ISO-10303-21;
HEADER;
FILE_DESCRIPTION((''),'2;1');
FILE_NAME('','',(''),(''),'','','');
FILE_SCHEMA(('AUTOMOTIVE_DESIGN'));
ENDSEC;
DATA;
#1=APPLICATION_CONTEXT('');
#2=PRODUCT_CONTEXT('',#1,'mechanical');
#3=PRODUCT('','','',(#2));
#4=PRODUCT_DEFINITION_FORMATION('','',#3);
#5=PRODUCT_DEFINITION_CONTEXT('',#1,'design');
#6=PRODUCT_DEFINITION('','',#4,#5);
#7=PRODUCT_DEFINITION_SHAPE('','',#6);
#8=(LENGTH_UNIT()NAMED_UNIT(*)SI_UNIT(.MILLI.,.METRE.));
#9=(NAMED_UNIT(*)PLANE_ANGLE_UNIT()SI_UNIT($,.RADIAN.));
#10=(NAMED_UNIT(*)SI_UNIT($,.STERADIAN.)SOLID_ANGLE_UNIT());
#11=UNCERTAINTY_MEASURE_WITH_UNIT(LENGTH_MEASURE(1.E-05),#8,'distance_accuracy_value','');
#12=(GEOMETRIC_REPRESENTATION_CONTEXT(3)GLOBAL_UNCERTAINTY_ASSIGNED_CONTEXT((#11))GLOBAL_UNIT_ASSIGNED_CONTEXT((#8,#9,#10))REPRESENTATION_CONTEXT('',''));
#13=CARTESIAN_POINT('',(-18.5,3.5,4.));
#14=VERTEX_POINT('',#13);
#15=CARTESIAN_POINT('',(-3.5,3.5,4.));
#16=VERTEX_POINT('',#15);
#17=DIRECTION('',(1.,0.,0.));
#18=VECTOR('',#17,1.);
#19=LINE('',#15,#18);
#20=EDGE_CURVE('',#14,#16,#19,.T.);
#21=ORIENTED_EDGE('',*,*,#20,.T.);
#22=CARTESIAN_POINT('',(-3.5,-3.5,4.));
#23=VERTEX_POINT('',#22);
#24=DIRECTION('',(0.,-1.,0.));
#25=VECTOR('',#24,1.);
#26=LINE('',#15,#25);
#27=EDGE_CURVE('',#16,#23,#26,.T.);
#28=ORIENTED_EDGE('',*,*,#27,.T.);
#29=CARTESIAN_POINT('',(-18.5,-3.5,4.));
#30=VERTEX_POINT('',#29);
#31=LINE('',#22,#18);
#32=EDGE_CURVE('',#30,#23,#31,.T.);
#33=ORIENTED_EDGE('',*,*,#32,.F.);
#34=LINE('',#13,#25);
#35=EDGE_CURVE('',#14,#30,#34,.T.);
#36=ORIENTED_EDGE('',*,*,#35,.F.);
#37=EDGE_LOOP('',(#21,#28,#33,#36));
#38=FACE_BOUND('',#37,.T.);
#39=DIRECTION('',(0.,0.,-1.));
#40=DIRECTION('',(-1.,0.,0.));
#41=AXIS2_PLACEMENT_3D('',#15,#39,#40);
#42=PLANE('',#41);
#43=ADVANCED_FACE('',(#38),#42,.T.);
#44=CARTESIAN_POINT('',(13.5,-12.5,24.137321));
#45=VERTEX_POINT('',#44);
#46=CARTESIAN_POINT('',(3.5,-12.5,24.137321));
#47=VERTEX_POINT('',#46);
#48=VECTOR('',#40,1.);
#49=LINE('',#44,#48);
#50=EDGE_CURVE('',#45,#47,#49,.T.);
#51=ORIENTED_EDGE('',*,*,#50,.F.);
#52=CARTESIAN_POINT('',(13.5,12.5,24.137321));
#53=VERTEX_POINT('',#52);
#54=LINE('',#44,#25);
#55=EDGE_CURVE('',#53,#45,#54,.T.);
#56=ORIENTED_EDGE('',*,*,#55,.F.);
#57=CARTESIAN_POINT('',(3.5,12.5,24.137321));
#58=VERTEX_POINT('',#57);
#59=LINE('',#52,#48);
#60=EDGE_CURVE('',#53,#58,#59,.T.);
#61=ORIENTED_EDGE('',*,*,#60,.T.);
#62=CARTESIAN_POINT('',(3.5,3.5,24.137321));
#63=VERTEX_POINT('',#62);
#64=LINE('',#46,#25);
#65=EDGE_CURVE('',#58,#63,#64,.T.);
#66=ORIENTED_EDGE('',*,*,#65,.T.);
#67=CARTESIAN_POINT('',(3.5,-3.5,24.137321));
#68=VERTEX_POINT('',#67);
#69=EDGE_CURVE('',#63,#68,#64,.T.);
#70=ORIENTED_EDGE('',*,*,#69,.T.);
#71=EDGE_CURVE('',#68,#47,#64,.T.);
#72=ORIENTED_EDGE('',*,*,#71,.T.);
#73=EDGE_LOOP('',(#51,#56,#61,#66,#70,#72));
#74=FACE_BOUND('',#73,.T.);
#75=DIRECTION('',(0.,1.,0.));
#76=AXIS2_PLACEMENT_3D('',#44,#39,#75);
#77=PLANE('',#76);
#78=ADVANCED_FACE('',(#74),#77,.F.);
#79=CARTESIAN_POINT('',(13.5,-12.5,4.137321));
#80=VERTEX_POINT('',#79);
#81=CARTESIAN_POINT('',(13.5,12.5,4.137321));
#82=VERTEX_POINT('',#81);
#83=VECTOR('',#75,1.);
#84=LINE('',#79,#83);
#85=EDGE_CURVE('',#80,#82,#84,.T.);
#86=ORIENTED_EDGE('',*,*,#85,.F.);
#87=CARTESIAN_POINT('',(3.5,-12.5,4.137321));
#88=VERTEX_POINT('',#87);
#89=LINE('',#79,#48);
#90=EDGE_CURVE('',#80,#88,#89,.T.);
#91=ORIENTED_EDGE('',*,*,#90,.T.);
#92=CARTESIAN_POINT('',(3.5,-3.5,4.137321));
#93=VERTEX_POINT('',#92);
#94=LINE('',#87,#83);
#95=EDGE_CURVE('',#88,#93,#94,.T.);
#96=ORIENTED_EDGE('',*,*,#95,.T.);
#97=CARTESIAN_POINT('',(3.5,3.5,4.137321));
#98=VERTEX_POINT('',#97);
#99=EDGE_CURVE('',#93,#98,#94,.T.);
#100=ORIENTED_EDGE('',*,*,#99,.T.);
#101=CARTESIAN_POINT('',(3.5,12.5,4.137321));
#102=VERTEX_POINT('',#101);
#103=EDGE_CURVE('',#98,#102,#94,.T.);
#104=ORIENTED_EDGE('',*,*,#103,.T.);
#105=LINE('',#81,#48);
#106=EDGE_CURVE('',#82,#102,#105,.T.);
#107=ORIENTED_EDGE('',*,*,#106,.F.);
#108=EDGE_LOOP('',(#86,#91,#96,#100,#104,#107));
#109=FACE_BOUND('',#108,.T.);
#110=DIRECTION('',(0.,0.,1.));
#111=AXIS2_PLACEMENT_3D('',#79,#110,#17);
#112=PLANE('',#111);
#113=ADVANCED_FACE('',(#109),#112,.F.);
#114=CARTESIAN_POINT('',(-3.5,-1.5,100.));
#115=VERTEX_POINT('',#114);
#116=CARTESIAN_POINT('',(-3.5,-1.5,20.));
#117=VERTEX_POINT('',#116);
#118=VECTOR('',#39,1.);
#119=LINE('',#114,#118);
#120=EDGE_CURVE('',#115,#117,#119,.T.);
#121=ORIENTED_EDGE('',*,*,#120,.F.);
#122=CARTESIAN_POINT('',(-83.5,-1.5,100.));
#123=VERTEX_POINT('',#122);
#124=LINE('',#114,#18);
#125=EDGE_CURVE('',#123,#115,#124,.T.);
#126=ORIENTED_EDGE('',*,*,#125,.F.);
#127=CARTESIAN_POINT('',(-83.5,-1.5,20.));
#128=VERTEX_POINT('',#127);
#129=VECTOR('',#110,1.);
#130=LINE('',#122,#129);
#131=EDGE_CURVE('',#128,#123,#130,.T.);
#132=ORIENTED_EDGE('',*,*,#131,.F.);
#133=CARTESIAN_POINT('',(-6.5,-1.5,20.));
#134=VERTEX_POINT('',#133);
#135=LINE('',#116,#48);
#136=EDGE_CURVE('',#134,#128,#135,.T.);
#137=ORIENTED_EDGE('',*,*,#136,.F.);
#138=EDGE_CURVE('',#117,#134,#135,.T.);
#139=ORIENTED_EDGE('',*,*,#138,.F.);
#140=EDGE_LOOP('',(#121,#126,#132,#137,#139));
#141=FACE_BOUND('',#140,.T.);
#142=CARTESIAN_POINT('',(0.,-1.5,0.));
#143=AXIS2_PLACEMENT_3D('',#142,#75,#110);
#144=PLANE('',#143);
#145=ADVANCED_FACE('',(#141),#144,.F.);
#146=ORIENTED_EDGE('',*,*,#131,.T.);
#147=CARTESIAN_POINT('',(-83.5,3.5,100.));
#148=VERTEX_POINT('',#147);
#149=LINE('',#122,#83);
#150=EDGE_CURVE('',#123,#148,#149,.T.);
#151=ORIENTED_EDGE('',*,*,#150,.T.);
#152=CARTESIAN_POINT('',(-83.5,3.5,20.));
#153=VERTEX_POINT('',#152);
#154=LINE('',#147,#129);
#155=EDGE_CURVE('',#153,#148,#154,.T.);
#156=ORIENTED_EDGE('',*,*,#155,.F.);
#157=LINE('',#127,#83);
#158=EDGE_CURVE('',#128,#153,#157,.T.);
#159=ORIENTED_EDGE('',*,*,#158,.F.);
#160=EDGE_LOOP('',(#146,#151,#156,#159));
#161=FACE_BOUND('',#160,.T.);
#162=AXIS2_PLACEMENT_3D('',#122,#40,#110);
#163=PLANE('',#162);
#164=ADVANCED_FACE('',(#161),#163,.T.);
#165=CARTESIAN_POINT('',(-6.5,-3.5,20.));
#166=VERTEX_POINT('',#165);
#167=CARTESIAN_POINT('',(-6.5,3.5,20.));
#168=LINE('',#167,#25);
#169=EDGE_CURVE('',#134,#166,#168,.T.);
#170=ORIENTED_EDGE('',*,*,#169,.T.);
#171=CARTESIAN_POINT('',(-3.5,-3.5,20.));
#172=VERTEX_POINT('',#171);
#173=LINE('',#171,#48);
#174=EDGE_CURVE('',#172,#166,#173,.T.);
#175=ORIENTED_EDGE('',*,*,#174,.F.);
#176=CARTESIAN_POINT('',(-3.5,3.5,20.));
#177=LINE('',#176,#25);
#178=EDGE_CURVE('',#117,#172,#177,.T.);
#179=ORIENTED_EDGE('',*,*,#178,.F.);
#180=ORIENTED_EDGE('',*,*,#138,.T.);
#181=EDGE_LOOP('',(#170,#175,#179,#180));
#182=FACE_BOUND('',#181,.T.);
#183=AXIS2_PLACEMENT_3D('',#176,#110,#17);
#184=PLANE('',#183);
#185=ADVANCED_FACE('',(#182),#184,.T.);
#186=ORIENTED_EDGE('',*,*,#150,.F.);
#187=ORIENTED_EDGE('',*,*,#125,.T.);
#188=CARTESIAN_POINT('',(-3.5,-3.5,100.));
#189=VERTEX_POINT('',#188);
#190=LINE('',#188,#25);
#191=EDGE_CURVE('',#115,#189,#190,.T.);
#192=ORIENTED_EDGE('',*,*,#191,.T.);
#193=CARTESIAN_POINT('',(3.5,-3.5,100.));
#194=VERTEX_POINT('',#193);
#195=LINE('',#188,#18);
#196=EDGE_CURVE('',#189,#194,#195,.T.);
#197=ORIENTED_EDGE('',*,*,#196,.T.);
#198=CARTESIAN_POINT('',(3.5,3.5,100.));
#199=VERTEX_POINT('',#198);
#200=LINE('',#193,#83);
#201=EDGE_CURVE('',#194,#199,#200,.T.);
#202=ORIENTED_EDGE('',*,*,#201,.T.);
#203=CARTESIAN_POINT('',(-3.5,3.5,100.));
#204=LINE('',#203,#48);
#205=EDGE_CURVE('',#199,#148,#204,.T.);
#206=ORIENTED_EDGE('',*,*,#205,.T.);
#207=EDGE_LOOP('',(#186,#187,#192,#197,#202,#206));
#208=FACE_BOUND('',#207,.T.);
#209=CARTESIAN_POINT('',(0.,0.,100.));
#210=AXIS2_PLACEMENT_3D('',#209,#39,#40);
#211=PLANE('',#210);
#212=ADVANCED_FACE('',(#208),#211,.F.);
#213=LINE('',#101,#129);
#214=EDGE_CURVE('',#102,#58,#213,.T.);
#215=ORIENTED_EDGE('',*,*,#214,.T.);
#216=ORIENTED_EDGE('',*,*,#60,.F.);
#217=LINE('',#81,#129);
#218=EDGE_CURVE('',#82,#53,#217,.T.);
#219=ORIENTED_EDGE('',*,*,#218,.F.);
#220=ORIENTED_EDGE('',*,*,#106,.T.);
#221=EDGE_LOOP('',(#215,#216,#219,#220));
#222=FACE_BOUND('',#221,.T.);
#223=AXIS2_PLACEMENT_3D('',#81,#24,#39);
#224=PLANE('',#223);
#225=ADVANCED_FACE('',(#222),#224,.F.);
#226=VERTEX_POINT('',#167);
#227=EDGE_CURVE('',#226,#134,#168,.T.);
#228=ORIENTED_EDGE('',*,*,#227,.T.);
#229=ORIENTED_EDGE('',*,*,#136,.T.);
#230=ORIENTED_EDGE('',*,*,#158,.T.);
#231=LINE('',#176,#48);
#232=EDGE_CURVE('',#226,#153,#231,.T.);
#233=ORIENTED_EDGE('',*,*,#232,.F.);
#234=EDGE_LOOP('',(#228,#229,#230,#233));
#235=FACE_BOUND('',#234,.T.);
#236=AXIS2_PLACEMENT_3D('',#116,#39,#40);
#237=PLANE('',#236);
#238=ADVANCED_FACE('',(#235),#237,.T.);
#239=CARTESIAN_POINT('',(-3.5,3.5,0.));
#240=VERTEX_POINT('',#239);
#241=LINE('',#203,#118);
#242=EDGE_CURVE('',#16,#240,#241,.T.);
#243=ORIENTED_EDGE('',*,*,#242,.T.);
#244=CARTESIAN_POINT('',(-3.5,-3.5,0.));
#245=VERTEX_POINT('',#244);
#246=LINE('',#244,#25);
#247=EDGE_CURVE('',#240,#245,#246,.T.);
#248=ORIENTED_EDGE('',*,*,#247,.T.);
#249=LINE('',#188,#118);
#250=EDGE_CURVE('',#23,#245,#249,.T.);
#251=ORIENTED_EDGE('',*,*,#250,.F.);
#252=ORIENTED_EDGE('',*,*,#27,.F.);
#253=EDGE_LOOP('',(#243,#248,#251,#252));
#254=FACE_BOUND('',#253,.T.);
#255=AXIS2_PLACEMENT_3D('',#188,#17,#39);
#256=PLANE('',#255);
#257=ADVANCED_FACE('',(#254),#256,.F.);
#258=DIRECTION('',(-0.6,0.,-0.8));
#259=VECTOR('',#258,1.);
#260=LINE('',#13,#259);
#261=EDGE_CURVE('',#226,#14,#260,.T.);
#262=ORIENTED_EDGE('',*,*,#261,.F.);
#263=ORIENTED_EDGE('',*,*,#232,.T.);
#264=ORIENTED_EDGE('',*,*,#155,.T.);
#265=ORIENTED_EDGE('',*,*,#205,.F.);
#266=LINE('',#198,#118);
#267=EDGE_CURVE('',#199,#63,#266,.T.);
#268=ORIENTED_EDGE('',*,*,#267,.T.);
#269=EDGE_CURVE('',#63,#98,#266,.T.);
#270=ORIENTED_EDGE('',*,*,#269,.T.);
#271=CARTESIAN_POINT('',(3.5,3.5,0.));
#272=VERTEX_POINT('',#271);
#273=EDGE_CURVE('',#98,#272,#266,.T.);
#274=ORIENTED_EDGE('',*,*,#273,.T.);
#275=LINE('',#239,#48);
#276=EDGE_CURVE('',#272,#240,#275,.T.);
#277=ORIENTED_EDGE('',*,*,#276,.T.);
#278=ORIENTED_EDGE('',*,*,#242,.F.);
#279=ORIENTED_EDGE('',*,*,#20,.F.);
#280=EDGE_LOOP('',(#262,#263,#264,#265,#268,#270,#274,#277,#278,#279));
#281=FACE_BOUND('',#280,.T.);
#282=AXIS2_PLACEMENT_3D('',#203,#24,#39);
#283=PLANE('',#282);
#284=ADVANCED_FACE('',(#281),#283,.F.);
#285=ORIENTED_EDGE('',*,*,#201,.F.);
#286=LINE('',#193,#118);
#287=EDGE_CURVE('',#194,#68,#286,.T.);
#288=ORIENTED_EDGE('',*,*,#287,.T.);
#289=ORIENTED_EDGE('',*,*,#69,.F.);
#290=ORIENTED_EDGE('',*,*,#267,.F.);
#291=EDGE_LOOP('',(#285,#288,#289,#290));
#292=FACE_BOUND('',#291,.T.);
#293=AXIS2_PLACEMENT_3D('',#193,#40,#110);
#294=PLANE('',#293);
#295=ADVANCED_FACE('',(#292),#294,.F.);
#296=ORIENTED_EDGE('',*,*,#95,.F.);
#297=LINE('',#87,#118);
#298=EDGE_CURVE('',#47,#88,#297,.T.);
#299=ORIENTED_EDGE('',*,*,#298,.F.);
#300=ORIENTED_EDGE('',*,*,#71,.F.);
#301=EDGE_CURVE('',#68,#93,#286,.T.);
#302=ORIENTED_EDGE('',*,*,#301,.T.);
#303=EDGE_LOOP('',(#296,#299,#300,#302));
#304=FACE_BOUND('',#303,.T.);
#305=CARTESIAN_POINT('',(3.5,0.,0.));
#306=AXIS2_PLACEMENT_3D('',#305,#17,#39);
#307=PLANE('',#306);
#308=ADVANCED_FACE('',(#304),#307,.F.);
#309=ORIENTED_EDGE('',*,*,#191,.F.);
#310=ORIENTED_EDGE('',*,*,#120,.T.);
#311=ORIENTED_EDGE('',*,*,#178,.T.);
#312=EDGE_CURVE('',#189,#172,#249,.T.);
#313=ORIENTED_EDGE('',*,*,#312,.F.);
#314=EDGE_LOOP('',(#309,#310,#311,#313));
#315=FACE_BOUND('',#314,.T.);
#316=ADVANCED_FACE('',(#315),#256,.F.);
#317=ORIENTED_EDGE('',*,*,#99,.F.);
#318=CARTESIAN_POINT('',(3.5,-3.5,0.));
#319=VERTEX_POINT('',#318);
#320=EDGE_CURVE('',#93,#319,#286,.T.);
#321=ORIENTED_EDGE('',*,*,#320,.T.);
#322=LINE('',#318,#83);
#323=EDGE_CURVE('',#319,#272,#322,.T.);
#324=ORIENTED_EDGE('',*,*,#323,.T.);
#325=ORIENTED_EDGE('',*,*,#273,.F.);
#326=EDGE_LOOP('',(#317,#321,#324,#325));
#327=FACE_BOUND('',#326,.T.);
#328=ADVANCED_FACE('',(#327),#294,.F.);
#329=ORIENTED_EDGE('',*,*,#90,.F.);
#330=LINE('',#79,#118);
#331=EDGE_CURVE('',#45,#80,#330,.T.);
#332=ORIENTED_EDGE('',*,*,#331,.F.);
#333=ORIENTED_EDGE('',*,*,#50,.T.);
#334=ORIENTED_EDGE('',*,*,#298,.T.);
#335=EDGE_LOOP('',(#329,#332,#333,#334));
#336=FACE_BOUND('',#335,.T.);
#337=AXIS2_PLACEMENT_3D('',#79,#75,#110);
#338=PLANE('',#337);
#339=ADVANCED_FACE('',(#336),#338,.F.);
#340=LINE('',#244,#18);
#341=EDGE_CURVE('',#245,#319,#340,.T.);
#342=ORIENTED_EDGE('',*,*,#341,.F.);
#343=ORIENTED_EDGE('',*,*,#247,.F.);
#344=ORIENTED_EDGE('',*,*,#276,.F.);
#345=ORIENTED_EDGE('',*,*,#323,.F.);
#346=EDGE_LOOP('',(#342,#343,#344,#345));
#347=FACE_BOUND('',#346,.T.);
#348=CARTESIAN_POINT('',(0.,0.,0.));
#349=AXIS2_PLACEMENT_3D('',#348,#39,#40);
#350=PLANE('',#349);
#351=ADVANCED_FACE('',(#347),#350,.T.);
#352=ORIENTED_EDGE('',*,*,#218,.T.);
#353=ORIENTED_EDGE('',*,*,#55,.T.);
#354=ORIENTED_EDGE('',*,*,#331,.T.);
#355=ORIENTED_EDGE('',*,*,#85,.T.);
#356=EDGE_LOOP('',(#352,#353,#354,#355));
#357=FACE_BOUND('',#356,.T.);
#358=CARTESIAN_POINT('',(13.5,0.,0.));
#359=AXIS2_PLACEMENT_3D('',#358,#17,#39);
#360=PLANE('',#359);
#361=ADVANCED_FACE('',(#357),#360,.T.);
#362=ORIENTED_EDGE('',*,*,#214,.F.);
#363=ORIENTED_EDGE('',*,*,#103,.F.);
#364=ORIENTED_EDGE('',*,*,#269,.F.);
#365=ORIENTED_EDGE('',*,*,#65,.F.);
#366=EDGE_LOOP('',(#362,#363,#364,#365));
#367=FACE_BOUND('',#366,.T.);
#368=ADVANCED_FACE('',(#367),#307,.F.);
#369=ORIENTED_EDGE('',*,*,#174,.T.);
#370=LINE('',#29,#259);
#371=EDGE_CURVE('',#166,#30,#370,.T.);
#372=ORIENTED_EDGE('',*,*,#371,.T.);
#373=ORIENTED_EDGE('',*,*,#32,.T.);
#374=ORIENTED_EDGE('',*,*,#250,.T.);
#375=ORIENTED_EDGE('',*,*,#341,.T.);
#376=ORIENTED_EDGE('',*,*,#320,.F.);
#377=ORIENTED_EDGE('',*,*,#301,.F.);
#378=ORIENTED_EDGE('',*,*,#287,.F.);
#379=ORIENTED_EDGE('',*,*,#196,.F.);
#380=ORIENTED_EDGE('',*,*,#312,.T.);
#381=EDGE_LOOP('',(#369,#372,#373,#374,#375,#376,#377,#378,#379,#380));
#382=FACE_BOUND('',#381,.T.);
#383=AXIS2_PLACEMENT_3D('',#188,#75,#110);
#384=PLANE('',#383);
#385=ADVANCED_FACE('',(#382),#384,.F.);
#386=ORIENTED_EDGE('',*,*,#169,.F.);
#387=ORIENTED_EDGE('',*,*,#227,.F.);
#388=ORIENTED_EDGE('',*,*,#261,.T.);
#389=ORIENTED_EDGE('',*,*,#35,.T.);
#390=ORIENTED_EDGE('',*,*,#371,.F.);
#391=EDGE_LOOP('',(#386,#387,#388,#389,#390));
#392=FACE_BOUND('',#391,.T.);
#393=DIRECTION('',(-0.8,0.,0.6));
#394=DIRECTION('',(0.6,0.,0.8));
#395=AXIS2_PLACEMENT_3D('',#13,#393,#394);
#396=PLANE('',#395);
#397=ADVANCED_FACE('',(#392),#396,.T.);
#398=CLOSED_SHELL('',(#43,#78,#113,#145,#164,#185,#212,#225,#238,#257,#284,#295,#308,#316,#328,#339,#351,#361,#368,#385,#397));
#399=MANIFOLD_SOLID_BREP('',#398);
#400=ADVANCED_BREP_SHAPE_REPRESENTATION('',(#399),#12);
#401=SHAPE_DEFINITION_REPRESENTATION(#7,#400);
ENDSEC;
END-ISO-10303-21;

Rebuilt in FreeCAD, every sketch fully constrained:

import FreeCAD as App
import Part
import Sketcher

V = App.Vector

doc = App.newDocument("Part")
body = doc.addObject("PartDesign::Body", "Body")

# Sketch on XY plane
sketch1 = doc.addObject("Sketcher::SketchObject", "Sketch")
body.addObject(sketch1)
sketch1.AttachmentSupport = (doc.XY_Plane, [""])
sketch1.MapMode = "FlatFace"
sketch1.addGeometry([
    Part.LineSegment(V(-4, 4, 0), V(-4, -4, 0)),
    Part.LineSegment(V(-4, -4, 0), V(4, -4, 0)),
    Part.LineSegment(V(4, -4, 0), V(4, 4, 0)),
    Part.LineSegment(V(4, 4, 0), V(-4, 4, 0)),
], False)
sketch1.addConstraint([
    Sketcher.Constraint("Coincident", 0, 2, 1, 1),
    Sketcher.Constraint("Coincident", 1, 2, 2, 1),
    Sketcher.Constraint("Coincident", 2, 2, 3, 1),
    Sketcher.Constraint("Coincident", 3, 2, 0, 1),
    Sketcher.Constraint("Vertical", 0),
    Sketcher.Constraint("Horizontal", 1),
    Sketcher.Constraint("Vertical", 2),
    Sketcher.Constraint("Horizontal", 3),
    Sketcher.Constraint("Symmetric", 0, 2, 2, 2, -1, 1),
    Sketcher.Constraint("Equal", 3, 0),
    Sketcher.Constraint("DistanceX", 1, 1, 1, 2, 7.0),
])
pad1 = doc.addObject("PartDesign::Pad", "Pad")
body.addObject(pad1)
pad1.Profile = sketch1
pad1.Length = 100

# Sketch on XZ plane
sketch2 = doc.addObject("Sketcher::SketchObject", "Sketch001")
body.addObject(sketch2)
sketch2.AttachmentSupport = (doc.XZ_Plane, [""])
sketch2.MapMode = "FlatFace"
sketch2.AttachmentOffset = App.Placement(V(0, 0, -3.5), App.Rotation())
sketch2.addGeometry([
    Part.LineSegment(V(-84, 20, 0), V(-84, 100, 0)),
    Part.LineSegment(V(-84, 100, 0), V(-4, 100, 0)),
    Part.LineSegment(V(-4, 100, 0), V(-4, 20, 0)),
    Part.LineSegment(V(-4, 20, 0), V(-84, 20, 0)),
], False)
sketch2.addConstraint([
    Sketcher.Constraint("Coincident", 0, 2, 1, 1),
    Sketcher.Constraint("Coincident", 1, 2, 2, 1),
    Sketcher.Constraint("Coincident", 2, 2, 3, 1),
    Sketcher.Constraint("Coincident", 3, 2, 0, 1),
    Sketcher.Constraint("Vertical", 0),
    Sketcher.Constraint("Horizontal", 1),
    Sketcher.Constraint("Vertical", 2),
    Sketcher.Constraint("Horizontal", 3),
    Sketcher.Constraint("Equal", 3, 0),
    Sketcher.Constraint("DistanceX", 1, 1, 1, 2, 80.0),
    Sketcher.Constraint("DistanceY", -1, 1, 0, 2, 100.0),
    Sketcher.Constraint("DistanceX", 0, 2, -1, 1, 83.5),
])
pad2 = doc.addObject("PartDesign::Pad", "Pad001")
body.addObject(pad2)
pad2.Profile = sketch2
pad2.Length = 5

# Sketch on XZ plane
sketch3 = doc.addObject("Sketcher::SketchObject", "Sketch002")
body.addObject(sketch3)
sketch3.AttachmentSupport = (doc.XZ_Plane, [""])
sketch3.MapMode = "FlatFace"
sketch3.AttachmentOffset = App.Placement(V(0, 0, 3.5), App.Rotation())
sketch3.addGeometry([
    Part.LineSegment(V(-3.5, 20, 0), V(-6.5, 20, 0)),
    Part.LineSegment(V(-6.5, 20, 0), V(-18.5, 4, 0)),
    Part.LineSegment(V(-18.5, 4, 0), V(-3.5, 4, 0)),
    Part.LineSegment(V(-3.5, 4, 0), V(-3.5, 20, 0)),
], False)
sketch3.addConstraint([
    Sketcher.Constraint("Coincident", 0, 2, 1, 1),
    Sketcher.Constraint("Coincident", 1, 2, 2, 1),
    Sketcher.Constraint("Coincident", 2, 2, 3, 1),
    Sketcher.Constraint("Coincident", 3, 2, 0, 1),
    Sketcher.Constraint("Horizontal", 0),
    Sketcher.Constraint("Horizontal", 2),
    Sketcher.Constraint("Vertical", 3),
    Sketcher.Constraint("DistanceX", 0, 2, 0, 1, 3.0),
    Sketcher.Constraint("DistanceX", 2, 1, 2, 2, 15.0),
    Sketcher.Constraint("DistanceY", 3, 1, 3, 2, 16.0),
    Sketcher.Constraint("DistanceY", -1, 1, 0, 2, 20.0),
    Sketcher.Constraint("DistanceX", 0, 2, -1, 1, 6.5),
])
pad3 = doc.addObject("PartDesign::Pad", "Pad002")
body.addObject(pad3)
pad3.Profile = sketch3
pad3.Length = 7
pad3.Reversed = True

# Sketch on YZ plane
sketch4 = doc.addObject("Sketcher::SketchObject", "Sketch003")
body.addObject(sketch4)
sketch4.AttachmentSupport = (doc.YZ_Plane, [""])
sketch4.MapMode = "FlatFace"
sketch4.AttachmentOffset = App.Placement(V(0, 0, 3.5), App.Rotation())
sketch4.addGeometry([
    Part.LineSegment(V(12, 24, 0), V(-12, 24, 0)),
    Part.LineSegment(V(-12, 24, 0), V(-12, 4, 0)),
    Part.LineSegment(V(-12, 4, 0), V(12, 4, 0)),
    Part.LineSegment(V(12, 4, 0), V(12, 24, 0)),
], False)
sketch4.addConstraint([
    Sketcher.Constraint("Coincident", 0, 2, 1, 1),
    Sketcher.Constraint("Coincident", 1, 2, 2, 1),
    Sketcher.Constraint("Coincident", 2, 2, 3, 1),
    Sketcher.Constraint("Coincident", 3, 2, 0, 1),
    Sketcher.Constraint("Horizontal", 0),
    Sketcher.Constraint("Vertical", 1),
    Sketcher.Constraint("Horizontal", 2),
    Sketcher.Constraint("Vertical", 3),
    Sketcher.Constraint("DistanceX", 0, 2, 0, 1, 25.0),
    Sketcher.Constraint("DistanceY", 1, 2, 1, 1, 20.0),
    Sketcher.Constraint("DistanceX", 0, 2, -1, 1, 12.5),
    Sketcher.Constraint("DistanceY", -1, 1, 0, 2, 24.137321),
])
pad4 = doc.addObject("PartDesign::Pad", "Pad003")
body.addObject(pad4)
pad4.Profile = sketch4
pad4.Length = 10

doc.recompute()
